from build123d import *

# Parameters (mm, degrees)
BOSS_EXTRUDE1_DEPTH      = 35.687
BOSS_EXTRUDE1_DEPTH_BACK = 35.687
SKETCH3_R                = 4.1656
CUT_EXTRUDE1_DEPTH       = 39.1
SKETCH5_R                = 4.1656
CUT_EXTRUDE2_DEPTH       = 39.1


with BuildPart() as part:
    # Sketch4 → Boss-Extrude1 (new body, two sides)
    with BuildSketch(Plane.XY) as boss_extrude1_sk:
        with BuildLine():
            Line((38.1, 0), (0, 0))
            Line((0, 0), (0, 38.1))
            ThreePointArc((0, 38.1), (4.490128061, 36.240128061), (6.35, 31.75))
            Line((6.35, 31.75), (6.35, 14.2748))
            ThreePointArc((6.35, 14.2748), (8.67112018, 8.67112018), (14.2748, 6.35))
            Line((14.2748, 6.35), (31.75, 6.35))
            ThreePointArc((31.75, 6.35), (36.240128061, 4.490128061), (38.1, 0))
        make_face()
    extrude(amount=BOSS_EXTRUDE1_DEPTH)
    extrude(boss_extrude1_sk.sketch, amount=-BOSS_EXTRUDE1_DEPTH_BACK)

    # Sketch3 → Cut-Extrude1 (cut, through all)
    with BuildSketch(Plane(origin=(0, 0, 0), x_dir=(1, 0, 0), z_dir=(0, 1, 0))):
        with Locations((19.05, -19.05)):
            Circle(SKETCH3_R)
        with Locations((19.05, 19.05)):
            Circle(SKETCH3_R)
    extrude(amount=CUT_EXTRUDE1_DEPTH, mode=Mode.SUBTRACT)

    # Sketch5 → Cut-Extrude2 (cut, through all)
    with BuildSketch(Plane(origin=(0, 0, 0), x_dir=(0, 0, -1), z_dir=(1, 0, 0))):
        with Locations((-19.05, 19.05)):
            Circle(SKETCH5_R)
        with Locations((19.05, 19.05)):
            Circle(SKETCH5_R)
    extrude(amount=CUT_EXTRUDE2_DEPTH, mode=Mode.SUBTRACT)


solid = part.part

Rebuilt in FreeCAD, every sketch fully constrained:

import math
import FreeCAD as App
import Part
import Sketcher
from FreeCAD import Vector
Q = App.Units.Quantity

doc = App.newDocument("Part")
body = doc.addObject("PartDesign::Body", "Body")

# Sketch on XY plane
sketch1 = doc.addObject("Sketcher::SketchObject", "Sketch")
body.addObject(sketch1)
sketch1.AttachmentSupport = (doc.XY_Plane, [""])
sketch1.MapMode = "FlatFace"
sketch1.addGeometry([
    Part.LineSegment(Vector(0, 0, 0), Vector(38, 0, 0)),  # 0
    Part.ArcOfCircle(Part.Circle(Vector(32, 0, 0), Vector(0, 0, 1), 6), math.radians(0), math.radians(90)),  # 1
    Part.LineSegment(Vector(32, 6, 0), Vector(14, 6, 0)),  # 2
    Part.ArcOfCircle(Part.Circle(Vector(14, 14, 0), Vector(0, 0, 1), 8), math.radians(180), math.radians(270)),  # 3
    Part.LineSegment(Vector(6, 14, 0), Vector(6, 32, 0)),  # 4
    Part.ArcOfCircle(Part.Circle(Vector(0, 32, 0), Vector(0, 0, 1), 6), math.radians(0), math.radians(90)),  # 5
    Part.LineSegment(Vector(0, 38, 0), Vector(0, 0, 0)),  # 6
], False)
sketch1.addConstraint([
    Sketcher.Constraint("Coincident", 0, 2, 1, 1),
    Sketcher.Constraint("Tangent", 1, 2, 2, 1),
    Sketcher.Constraint("Tangent", 2, 2, 3, 2),
    Sketcher.Constraint("Tangent", 3, 1, 4, 1),
    Sketcher.Constraint("Tangent", 4, 2, 5, 1),
    Sketcher.Constraint("Coincident", 5, 2, 6, 1),
    Sketcher.Constraint("Coincident", 6, 2, 0, 1),
    Sketcher.Constraint("Horizontal", 0),
    Sketcher.Constraint("Horizontal", 2),
    Sketcher.Constraint("Vertical", 4),
    Sketcher.Constraint("Vertical", 6),
    Sketcher.Constraint("Coincident", 6, 2, -1, 1),
    Sketcher.Constraint("Equal", 1, 5),
    Sketcher.Constraint("PointOnObject", 1, 3, -1),
    Sketcher.Constraint("PointOnObject", 5, 3, -2),
    Sketcher.Constraint("Equal", 2, 4),
    Sketcher.Constraint("Radius", 1, Q("0.25 in")),
    Sketcher.Constraint("DistanceX", 0, 1, 0, 2, Q("1.5 in")),
    Sketcher.Constraint("Radius", 3, Q("0.312 in")),
])
pad1 = doc.addObject("PartDesign::Pad", "Pad")
body.addObject(pad1)
pad1.Profile = sketch1
pad1.Type = "TwoLengths"
pad1.Length = Q("1.405 in")
pad1.Length2 = Q("1.405 in")

# Sketch on XZ plane
sketch2 = doc.addObject("Sketcher::SketchObject", "Sketch001")
body.addObject(sketch2)
sketch2.AttachmentSupport = (doc.XZ_Plane, [""])
sketch2.MapMode = "FlatFace"
sketch2.addGeometry([
    Part.Circle(Vector(19.1, 19.1, 0), Vector(0, 0, 1), 4.2),
    Part.Circle(Vector(19.1, -19.1, 0), Vector(0, 0, 1), 4.2),
], False)
sketch2.addConstraint([
    Sketcher.Constraint("Equal", 0, 1),
    Sketcher.Constraint("Symmetric", 0, 3, 1, 3, -1),
    Sketcher.Constraint("Diameter", 0, Q("0.328 in")),
    Sketcher.Constraint("DistanceY", 1, 3, 0, 3, Q("1.5 in")),
    Sketcher.Constraint("DistanceX", -1, 1, 0, 3, Q("0.75 in")),
])
pocket1 = doc.addObject("PartDesign::Pocket", "Pocket")
body.addObject(pocket1)
pocket1.Profile = sketch2
pocket1.Type = "ThroughAll"

# Sketch on YZ plane
sketch3 = doc.addObject("Sketcher::SketchObject", "Sketch002")
body.addObject(sketch3)
sketch3.AttachmentSupport = (doc.YZ_Plane, [""])
sketch3.MapMode = "FlatFace"
sketch3.addGeometry([
    Part.Circle(Vector(19.1, 19.1, 0), Vector(0, 0, 1), 4.2),
    Part.Circle(Vector(19.1, -19.1, 0), Vector(0, 0, 1), 4.2),
], False)
sketch3.addConstraint([
    Sketcher.Constraint("Equal", 0, 1),
    Sketcher.Constraint("Symmetric", 0, 3, 1, 3, -1),
    Sketcher.Constraint("Diameter", 0, Q("0.328 in")),
    Sketcher.Constraint("DistanceY", 1, 3, 0, 3, Q("1.5 in")),
    Sketcher.Constraint("DistanceX", -1, 1, 0, 3, Q("0.75 in")),
])
pocket2 = doc.addObject("PartDesign::Pocket", "Pocket001")
body.addObject(pocket2)
pocket2.Profile = sketch3
pocket2.Type = "ThroughAll"
pocket2.Reversed = True

doc.recompute()
